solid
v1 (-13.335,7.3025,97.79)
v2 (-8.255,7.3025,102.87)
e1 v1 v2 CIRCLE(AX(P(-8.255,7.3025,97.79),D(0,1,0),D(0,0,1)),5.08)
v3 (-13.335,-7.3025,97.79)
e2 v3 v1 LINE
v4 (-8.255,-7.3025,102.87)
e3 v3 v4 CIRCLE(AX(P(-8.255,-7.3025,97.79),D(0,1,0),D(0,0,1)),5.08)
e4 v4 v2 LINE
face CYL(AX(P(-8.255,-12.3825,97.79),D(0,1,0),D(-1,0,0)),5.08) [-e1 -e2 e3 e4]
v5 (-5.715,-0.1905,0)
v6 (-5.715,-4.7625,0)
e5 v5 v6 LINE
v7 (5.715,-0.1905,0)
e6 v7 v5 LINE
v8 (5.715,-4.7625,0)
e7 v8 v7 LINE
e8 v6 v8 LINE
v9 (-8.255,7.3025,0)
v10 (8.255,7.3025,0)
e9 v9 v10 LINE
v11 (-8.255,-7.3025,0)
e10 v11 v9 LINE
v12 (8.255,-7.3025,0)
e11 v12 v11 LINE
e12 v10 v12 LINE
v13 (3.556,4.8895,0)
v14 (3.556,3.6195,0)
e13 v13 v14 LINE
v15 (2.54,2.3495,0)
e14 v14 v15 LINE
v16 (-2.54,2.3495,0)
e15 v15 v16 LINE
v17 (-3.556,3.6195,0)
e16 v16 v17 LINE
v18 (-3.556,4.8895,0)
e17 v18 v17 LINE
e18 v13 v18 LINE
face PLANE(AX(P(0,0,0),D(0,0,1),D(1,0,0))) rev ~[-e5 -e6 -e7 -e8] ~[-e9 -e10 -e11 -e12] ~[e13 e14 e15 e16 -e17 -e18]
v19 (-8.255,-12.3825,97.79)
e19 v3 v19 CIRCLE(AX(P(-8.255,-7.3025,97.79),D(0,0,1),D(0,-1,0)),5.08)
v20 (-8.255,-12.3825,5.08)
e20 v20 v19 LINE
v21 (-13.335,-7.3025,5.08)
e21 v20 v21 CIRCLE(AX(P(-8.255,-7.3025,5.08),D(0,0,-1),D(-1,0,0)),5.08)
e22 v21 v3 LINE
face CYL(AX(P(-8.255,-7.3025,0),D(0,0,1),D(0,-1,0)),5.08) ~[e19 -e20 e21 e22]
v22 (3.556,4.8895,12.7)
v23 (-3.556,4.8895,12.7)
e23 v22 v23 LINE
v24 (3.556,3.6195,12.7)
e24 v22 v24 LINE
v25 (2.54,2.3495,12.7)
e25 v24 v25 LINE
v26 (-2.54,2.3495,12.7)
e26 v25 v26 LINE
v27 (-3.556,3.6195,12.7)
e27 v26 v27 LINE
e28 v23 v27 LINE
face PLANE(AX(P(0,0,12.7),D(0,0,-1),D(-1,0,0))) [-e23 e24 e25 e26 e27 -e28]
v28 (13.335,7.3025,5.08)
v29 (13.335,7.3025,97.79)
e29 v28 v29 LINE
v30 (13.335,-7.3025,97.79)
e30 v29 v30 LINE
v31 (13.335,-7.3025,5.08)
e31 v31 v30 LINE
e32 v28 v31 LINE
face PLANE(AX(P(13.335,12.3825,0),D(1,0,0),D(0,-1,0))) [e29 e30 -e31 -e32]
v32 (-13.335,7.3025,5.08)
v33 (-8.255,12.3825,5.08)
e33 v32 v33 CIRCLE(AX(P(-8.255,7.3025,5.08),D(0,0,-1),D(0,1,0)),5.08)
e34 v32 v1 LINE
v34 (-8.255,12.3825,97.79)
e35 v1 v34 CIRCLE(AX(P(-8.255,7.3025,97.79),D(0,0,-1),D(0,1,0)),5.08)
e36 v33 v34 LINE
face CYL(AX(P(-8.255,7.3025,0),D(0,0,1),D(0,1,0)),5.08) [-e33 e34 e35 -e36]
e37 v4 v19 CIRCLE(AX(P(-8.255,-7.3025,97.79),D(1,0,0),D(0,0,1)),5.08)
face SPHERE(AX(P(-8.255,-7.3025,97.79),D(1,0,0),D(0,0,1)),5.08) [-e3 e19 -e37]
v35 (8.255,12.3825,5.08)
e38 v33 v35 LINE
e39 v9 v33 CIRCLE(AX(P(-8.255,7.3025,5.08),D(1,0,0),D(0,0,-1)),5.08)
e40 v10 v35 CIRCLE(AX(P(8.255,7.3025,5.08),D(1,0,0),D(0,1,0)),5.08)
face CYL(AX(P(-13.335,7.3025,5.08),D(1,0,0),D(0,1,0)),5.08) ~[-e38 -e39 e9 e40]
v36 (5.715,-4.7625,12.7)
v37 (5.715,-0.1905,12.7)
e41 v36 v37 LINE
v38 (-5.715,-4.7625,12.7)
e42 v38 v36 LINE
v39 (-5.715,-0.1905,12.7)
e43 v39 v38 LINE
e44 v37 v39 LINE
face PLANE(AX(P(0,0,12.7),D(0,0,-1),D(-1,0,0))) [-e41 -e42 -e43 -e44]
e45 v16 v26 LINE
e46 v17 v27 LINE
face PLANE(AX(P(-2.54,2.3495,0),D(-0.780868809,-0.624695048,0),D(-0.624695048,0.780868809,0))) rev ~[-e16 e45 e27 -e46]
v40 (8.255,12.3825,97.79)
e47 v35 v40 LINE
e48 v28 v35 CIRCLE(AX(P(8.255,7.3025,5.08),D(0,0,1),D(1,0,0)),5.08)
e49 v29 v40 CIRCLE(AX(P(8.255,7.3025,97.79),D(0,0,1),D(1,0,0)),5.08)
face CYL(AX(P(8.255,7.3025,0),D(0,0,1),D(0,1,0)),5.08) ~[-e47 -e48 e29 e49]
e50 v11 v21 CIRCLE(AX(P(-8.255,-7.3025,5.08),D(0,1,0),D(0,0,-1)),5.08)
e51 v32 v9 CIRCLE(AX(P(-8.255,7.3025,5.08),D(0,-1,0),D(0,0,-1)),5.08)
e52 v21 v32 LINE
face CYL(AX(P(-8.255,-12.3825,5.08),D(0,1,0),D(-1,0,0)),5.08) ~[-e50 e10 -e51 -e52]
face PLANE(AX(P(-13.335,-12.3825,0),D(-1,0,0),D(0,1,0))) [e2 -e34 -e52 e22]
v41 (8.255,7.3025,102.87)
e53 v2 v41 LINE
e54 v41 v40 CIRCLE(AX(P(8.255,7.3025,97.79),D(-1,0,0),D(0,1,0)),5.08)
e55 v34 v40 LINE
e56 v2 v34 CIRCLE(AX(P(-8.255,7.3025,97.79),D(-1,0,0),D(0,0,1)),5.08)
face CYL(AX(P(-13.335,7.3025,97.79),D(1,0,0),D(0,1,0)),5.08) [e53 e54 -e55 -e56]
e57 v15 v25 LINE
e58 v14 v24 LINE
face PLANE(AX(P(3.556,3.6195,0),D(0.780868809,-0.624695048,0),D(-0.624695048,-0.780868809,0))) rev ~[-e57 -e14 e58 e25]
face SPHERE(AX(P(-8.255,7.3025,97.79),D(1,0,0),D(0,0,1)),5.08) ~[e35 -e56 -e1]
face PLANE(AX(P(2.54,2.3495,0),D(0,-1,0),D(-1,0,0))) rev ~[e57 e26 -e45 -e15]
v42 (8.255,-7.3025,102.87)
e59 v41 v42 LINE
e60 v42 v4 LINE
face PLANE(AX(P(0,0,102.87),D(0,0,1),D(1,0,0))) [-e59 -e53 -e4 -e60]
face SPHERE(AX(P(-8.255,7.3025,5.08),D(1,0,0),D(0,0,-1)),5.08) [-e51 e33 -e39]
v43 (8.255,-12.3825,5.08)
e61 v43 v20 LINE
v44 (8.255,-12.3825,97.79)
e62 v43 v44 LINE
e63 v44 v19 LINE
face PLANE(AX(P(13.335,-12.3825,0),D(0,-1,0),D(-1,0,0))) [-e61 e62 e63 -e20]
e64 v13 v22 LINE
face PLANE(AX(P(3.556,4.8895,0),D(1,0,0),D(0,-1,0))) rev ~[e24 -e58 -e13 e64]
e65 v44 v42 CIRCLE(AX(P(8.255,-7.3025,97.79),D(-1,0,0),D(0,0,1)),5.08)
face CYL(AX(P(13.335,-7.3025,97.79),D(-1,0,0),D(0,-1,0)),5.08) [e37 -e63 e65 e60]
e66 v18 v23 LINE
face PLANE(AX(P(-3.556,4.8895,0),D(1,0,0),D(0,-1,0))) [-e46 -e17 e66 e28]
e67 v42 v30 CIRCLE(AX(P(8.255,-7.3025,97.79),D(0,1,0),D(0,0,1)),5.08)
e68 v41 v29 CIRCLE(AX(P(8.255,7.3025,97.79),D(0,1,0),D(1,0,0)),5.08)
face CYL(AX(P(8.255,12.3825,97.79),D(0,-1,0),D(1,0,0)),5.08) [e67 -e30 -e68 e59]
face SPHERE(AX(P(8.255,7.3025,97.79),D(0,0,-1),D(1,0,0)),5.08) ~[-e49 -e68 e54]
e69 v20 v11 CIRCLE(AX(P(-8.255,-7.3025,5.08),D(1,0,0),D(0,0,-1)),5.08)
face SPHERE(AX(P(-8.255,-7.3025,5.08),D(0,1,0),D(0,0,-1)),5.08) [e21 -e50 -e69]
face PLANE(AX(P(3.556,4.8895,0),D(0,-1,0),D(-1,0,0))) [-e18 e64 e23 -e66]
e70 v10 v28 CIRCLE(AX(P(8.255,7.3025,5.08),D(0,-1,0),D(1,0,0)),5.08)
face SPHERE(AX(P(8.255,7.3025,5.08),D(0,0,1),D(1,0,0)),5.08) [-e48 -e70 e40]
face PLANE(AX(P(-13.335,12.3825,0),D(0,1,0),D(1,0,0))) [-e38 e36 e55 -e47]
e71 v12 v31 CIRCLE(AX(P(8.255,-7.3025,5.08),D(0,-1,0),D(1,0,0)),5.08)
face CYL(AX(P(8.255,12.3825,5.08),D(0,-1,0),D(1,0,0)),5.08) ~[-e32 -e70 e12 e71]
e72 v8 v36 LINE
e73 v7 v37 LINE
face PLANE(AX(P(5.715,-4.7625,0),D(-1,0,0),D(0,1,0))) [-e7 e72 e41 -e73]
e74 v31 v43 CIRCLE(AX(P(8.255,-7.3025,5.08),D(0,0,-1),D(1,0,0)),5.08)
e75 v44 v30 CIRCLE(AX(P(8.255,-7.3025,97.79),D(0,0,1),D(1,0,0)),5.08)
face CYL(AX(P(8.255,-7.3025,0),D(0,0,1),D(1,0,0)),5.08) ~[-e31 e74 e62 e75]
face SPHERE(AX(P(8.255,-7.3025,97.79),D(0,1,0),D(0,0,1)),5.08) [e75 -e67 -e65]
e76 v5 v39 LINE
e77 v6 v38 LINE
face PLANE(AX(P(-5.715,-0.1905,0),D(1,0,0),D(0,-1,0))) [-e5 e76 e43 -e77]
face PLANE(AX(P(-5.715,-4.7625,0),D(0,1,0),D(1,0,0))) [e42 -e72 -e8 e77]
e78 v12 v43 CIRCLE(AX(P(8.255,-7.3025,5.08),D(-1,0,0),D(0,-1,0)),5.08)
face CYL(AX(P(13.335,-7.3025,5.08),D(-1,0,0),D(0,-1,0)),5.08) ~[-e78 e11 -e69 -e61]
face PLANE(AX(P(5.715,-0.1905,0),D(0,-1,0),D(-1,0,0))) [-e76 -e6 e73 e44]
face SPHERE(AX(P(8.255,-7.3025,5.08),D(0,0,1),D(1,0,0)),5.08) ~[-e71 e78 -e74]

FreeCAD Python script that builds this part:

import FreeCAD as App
import Part
import Sketcher

V = App.Vector
Q = App.Units.Quantity

doc = App.newDocument("Part")
body = doc.addObject("PartDesign::Body", "Body")

# Sketch on XY plane
sketch1 = body.newObject("Sketcher::SketchObject", "Sketch")
sketch1.AttachmentSupport = (doc.getObject("XY_Plane"), [""])
sketch1.MapMode = "FlatFace"
sketch1.addGeometry([
    Part.LineSegment(V(13.335, 12.3825, 0), V(-13.335, 12.3825, 0)),
    Part.LineSegment(V(-13.335, 12.3825, 0), V(-13.335, -12.3825, 0)),
    Part.LineSegment(V(-13.335, -12.3825, 0), V(13.335, -12.3825, 0)),
    Part.LineSegment(V(13.335, -12.3825, 0), V(13.335, 12.3825, 0)),
], False)
sketch1.addConstraint([
    Sketcher.Constraint("Coincident", 0, 2, 1, 1),
    Sketcher.Constraint("Coincident", 1, 2, 2, 1),
    Sketcher.Constraint("Coincident", 2, 2, 3, 1),
    Sketcher.Constraint("Coincident", 3, 2, 0, 1),
    Sketcher.Constraint("Horizontal", 0),
    Sketcher.Constraint("Vertical", 1),
    Sketcher.Constraint("Horizontal", 2),
    Sketcher.Constraint("Vertical", 3),
    Sketcher.Constraint("Symmetric", 0, 2, 2, 2, -1, 1),
    Sketcher.Constraint("DistanceX", 0, 2, 0, 1, Q("1.05 in")),
    Sketcher.Constraint("DistanceY", 1, 2, 1, 1, Q("0.975 in")),
])
pad1 = body.newObject("PartDesign::Pad", "Pad")
pad1.Profile = sketch1
pad1.Length = Q("4.05 in")
doc.recompute()

fillet = body.newObject("PartDesign::Fillet", "Fillet")
fillet.Base = (pad1, ["Edge1"])
fillet.UseAllEdges = True
fillet.Radius = Q("0.2 in")

# Sketch on XY plane
sketch2 = body.newObject("Sketcher::SketchObject", "Sketch001")
sketch2.AttachmentSupport = (doc.getObject("XY_Plane"), [""])
sketch2.MapMode = "FlatFace"
sketch2.addGeometry([
    Part.LineSegment(V(-5.715, -0.1905, 0), V(5.715, -0.1905, 0)),  # 0
    Part.LineSegment(V(5.715, -0.1905, 0), V(5.715, -4.7625, 0)),  # 1
    Part.LineSegment(V(5.715, -4.7625, 0), V(-5.715, -4.7625, 0)),  # 2
    Part.LineSegment(V(-5.715, -4.7625, 0), V(-5.715, -0.1905, 0)),  # 3
    Part.LineSegment(V(-3.556, 4.8895, 0), V(3.556, 4.8895, 0)),  # 4
    Part.LineSegment(V(3.556, 4.8895, 0), V(3.556, 3.6195, 0)),  # 5
    Part.LineSegment(V(3.556, 3.6195, 0), V(2.54, 2.3495, 0)),  # 6
    Part.LineSegment(V(2.54, 2.3495, 0), V(-2.54, 2.3495, 0)),  # 7
    Part.LineSegment(V(-2.54, 2.3495, 0), V(-3.556, 3.6195, 0)),  # 8
    Part.LineSegment(V(-3.556, 3.6195, 0), V(-3.556, 4.8895, 0)),  # 9
], False)
sketch2.addConstraint([
    Sketcher.Constraint("Coincident", 0, 2, 1, 1),
    Sketcher.Constraint("Coincident", 1, 2, 2, 1),
    Sketcher.Constraint("Coincident", 2, 2, 3, 1),
    Sketcher.Constraint("Coincident", 3, 2, 0, 1),
    Sketcher.Constraint("Coincident", 4, 2, 5, 1),
    Sketcher.Constraint("Coincident", 5, 2, 6, 1),
    Sketcher.Constraint("Coincident", 6, 2, 7, 1),
    Sketcher.Constraint("Coincident", 7, 2, 8, 1),
    Sketcher.Constraint("Coincident", 8, 2, 9, 1),
    Sketcher.Constraint("Coincident", 9, 2, 4, 1),
    Sketcher.Constraint("Horizontal", 0),
    Sketcher.Constraint("Vertical", 1),
    Sketcher.Constraint("Horizontal", 2),
    Sketcher.Constraint("Vertical", 3),
    Sketcher.Constraint("Horizontal", 4),
    Sketcher.Constraint("Vertical", 5),
    Sketcher.Constraint("Horizontal", 7),
    Sketcher.Constraint("Vertical", 9),
    Sketcher.Constraint("Symmetric", 5, 2, 8, 2, -2),
    Sketcher.Constraint("Equal", 6, 8),
    Sketcher.Constraint("DistanceX", 7, 2, 7, 1, Q("0.2 in")),
    Sketcher.Constraint("DistanceX", 0, 1, 0, 2, Q("0.45 in")),
    Sketcher.Constraint("DistanceX", 4, 1, 4, 2, Q("0.28 in")),
    Sketcher.Constraint("DistanceY", 1, 2, 1, 1, Q("0.18 in")),
    Sketcher.Constraint("DistanceY", 5, 2, 5, 1, Q("0.05 in")),
    Sketcher.Constraint("DistanceY", 0, 2, 4, 2, Q("0.2 in")),
    Sketcher.Constraint("DistanceY", 6, 2, 4, 2, Q("0.1 in")),
    Sketcher.Constraint("DistanceX", -1, 1, 0, 2, Q("0.225 in")),
    Sketcher.Constraint("DistanceY", 1, 2, -1, 1, Q("0.1875 in")),
])
pocket1 = body.newObject("PartDesign::Pocket", "Pocket")
pocket1.Profile = sketch2
pocket1.Length = Q("0.5 in")
pocket1.Reversed = True

doc.recompute()
